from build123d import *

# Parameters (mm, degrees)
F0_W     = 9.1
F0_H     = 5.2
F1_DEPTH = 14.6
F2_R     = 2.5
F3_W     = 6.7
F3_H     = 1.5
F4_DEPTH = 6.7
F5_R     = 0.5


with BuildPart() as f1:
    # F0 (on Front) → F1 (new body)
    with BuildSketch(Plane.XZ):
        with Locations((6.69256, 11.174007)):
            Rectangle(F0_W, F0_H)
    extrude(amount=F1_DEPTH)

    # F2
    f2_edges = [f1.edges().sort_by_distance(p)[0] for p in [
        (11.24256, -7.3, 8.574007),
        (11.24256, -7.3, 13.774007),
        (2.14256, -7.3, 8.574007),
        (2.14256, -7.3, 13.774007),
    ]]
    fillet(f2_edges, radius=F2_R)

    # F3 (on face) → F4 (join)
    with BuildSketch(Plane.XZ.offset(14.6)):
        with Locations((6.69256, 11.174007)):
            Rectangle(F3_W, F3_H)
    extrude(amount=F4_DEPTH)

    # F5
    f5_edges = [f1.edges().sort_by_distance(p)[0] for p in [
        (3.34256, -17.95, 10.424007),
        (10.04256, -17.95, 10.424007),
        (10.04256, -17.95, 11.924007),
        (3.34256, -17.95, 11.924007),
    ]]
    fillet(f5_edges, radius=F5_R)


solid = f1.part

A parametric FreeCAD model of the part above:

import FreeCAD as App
import Part
import Sketcher


def edges_at(feature, points):
    """Names of the edges that pass closest to the given points."""
    edges = feature.Shape.Edges
    near = lambda p: min(range(len(edges)), key=lambda i: edges[i].distToShape(Part.Vertex(*p))[0])
    return sorted({f"Edge{near(p) + 1}" for p in points})


def add_polygon(sketch, points):
    """Adds a closed chain of lines whose ends are joined by coincident constraints."""
    first, n = sketch.GeometryCount, len(points)
    for a, b in zip(points, points[1:] + points[:1]):
        sketch.addGeometry(Part.LineSegment(App.Vector(*a, 0), App.Vector(*b, 0)), False)
    for i in range(n):
        sketch.addConstraint(Sketcher.Constraint("Coincident", first + i, 2, first + (i + 1) % n, 1))

doc = App.newDocument("Part")
body = doc.addObject("PartDesign::Body", "Body")

# Sketch on XZ plane
sketch1 = body.newObject("Sketcher::SketchObject", "Sketch")
sketch1.AttachmentSupport = (doc.getObject("XZ_Plane"), [""])
sketch1.MapMode = "FlatFace"
add_polygon(sketch1, [(2, 14), (2, 9), (11, 9), (11, 14)])  # lines 0-3
sketch1.addConstraint(Sketcher.Constraint("Vertical", 0))
sketch1.addConstraint(Sketcher.Constraint("Horizontal", 1))
sketch1.addConstraint(Sketcher.Constraint("Vertical", 2))
sketch1.addConstraint(Sketcher.Constraint("Horizontal", 3))
sketch1.addConstraint(Sketcher.Constraint("DistanceX", 1, 1, 1, 2, 9.1))
sketch1.addConstraint(Sketcher.Constraint("DistanceY", 0, 2, 0, 1, 5.2))
sketch1.addConstraint(Sketcher.Constraint("DistanceX", -1, 1, 0, 2, 2.14256))
sketch1.addConstraint(Sketcher.Constraint("DistanceY", -1, 1, 0, 2, 8.574007))
pad1 = body.newObject("PartDesign::Pad", "Pad")
pad1.Profile = sketch1
pad1.Length = 14.6
doc.recompute()

fillet = body.newObject("PartDesign::Fillet", "Fillet")
fillet.Base = (pad1, edges_at(pad1, [
    (11.243, -7.3, 8.574),
    (11.243, -7.3, 13.774),
    (2.143, -7.3, 8.574),
    (2.143, -7.3, 13.774),
]))
fillet.Radius = 2.5

# Sketch on XZ plane
sketch2 = body.newObject("Sketcher::SketchObject", "Sketch001")
sketch2.AttachmentSupport = (doc.getObject("XZ_Plane"), [""])
sketch2.MapMode = "FlatFace"
sketch2.AttachmentOffset = App.Placement(App.Vector(0, 0, 14.6), App.Rotation())
add_polygon(sketch2, [(3.3, 11.9), (3.3, 10.4), (10, 10.4), (10, 11.9)])  # lines 0-3
sketch2.addConstraint(Sketcher.Constraint("Vertical", 0))
sketch2.addConstraint(Sketcher.Constraint("Horizontal", 1))
sketch2.addConstraint(Sketcher.Constraint("Vertical", 2))
sketch2.addConstraint(Sketcher.Constraint("Horizontal", 3))
sketch2.addConstraint(Sketcher.Constraint("DistanceX", 1, 1, 1, 2, 6.7))
sketch2.addConstraint(Sketcher.Constraint("DistanceY", 0, 2, 0, 1, 1.5))
sketch2.addConstraint(Sketcher.Constraint("DistanceX", -1, 1, 0, 2, 3.34256))
sketch2.addConstraint(Sketcher.Constraint("DistanceY", -1, 1, 0, 2, 10.424007))
pad2 = body.newObject("PartDesign::Pad", "Pad001")
pad2.Profile = sketch2
pad2.Length = 6.7
doc.recompute()

fillet2 = body.newObject("PartDesign::Fillet", "Fillet001")
fillet2.Base = (pad2, edges_at(pad2, [
    (3.343, -17.95, 10.424),
    (10.043, -17.95, 10.424),
    (10.043, -17.95, 11.924),
    (3.343, -17.95, 11.924),
]))
fillet2.Radius = 0.5

doc.recompute()
